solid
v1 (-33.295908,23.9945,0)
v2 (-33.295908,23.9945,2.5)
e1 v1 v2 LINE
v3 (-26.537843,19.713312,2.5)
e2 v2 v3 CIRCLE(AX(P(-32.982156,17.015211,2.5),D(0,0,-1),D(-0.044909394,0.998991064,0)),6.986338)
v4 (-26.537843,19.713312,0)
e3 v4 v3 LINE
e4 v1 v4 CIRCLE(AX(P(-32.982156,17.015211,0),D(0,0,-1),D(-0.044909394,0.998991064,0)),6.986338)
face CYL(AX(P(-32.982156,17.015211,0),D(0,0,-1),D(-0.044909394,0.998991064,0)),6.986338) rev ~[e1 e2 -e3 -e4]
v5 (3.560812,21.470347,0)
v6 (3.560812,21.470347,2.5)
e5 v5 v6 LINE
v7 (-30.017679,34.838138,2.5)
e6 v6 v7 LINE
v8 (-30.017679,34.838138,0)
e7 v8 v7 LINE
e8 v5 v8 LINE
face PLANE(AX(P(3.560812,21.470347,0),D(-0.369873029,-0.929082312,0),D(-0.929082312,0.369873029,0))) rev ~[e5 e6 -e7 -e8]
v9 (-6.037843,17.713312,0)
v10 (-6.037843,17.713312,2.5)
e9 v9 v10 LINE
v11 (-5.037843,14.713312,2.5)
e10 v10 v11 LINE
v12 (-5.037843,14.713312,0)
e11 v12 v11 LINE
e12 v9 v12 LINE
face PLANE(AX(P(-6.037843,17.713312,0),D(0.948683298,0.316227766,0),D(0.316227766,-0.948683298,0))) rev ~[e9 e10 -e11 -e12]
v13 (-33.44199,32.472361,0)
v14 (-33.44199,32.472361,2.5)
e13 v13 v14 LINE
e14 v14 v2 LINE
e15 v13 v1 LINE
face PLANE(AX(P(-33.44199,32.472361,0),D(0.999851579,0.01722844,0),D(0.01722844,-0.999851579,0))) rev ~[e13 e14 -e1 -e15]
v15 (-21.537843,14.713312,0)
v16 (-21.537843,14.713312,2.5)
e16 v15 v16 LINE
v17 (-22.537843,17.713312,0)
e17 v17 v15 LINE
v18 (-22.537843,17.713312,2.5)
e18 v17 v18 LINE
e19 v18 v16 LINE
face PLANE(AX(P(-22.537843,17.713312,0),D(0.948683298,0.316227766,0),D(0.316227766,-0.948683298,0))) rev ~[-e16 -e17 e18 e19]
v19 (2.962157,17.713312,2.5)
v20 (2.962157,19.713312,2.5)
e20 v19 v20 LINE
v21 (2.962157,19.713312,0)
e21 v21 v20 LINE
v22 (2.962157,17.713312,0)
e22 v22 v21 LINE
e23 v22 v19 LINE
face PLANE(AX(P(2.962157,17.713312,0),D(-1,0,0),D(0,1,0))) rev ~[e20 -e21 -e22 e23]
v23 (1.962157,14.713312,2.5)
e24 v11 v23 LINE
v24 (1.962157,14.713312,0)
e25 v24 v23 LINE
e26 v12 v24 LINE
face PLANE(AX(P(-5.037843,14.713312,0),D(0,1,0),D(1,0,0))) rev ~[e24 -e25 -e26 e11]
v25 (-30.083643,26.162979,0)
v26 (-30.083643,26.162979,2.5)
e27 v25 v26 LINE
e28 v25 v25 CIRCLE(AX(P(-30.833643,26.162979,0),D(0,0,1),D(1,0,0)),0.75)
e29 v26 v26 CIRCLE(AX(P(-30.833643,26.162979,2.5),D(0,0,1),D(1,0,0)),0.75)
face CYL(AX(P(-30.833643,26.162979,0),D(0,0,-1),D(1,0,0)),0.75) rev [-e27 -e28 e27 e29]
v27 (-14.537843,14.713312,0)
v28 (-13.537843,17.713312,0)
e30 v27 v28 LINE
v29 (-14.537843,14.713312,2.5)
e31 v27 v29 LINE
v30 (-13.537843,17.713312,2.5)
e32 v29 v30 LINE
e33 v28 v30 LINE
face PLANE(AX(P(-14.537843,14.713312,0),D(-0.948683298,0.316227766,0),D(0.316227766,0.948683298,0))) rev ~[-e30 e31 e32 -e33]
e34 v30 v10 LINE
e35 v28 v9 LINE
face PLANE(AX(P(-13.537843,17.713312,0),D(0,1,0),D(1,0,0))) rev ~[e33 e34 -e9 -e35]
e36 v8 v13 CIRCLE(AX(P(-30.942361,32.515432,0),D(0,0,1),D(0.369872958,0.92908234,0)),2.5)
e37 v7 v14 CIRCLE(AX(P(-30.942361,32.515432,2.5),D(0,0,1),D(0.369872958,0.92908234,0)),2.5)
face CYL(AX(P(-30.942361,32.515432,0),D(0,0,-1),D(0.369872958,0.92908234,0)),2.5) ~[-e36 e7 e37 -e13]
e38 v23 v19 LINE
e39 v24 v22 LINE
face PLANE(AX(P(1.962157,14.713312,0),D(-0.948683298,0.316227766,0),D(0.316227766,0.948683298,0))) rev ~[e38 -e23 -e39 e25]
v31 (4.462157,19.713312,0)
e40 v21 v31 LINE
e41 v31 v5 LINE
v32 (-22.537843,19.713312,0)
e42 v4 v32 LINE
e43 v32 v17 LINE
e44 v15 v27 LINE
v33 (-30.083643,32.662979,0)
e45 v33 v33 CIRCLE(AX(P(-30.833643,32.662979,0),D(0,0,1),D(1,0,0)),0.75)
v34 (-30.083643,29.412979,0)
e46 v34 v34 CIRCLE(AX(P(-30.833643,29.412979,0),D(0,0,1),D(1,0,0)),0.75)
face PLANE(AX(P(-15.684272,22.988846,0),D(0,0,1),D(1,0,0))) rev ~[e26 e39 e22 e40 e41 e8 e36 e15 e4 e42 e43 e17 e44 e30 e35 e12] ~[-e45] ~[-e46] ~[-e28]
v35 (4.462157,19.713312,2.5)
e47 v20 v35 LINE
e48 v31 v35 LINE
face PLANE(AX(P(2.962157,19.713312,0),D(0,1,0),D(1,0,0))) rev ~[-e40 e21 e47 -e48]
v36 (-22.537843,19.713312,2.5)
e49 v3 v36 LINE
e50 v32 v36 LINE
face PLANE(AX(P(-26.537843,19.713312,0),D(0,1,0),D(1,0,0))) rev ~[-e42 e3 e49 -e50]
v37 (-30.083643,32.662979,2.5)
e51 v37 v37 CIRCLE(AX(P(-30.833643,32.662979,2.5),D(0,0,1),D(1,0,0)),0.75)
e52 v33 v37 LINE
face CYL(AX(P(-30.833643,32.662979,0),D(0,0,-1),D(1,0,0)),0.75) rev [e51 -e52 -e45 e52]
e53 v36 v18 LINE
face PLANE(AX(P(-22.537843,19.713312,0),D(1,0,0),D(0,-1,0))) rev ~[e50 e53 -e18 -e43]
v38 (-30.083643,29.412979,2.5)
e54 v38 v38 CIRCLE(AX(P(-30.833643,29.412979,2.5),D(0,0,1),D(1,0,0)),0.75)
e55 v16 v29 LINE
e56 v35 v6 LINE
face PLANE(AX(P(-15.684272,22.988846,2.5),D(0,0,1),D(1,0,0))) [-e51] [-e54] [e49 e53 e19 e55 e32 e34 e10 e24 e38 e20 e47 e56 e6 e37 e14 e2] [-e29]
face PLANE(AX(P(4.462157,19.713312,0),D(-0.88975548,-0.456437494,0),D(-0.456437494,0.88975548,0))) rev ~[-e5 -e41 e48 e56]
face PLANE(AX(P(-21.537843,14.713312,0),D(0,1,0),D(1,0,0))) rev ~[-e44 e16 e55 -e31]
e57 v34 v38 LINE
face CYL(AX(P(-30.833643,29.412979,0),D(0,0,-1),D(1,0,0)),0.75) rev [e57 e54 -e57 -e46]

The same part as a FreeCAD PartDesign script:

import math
import FreeCAD as App
import Part
import Sketcher

doc = App.newDocument("Part")
body = doc.addObject("PartDesign::Body", "Body")

# Sketch on XY plane
sketch1 = body.newObject("Sketcher::SketchObject", "Sketch")
sketch1.AttachmentSupport = (doc.getObject("XY_Plane"), [""])
sketch1.MapMode = "FlatFace"
sketch1.addGeometry([
    Part.LineSegment(App.Vector(4.5, 19.7, 0), App.Vector(3.6, 21.5, 0)),  # 0
    Part.LineSegment(App.Vector(3.6, 21.5, 0), App.Vector(-30, 34.8, 0)),  # 1
    Part.ArcOfCircle(Part.Circle(App.Vector(-30.9, 32.5, 0), App.Vector(0, 0, 1), 2.5), math.radians(68), math.radians(181)),  # 2
    Part.LineSegment(App.Vector(-33.4, 32.5, 0), App.Vector(-33.3, 24, 0)),  # 3
    Part.ArcOfCircle(Part.Circle(App.Vector(-33, 17, 0), App.Vector(0, 0, 1), 7), math.radians(23), math.radians(93)),  # 4
    Part.LineSegment(App.Vector(-26.5, 19.7, 0), App.Vector(-22.5, 19.7, 0)),  # 5
    Part.LineSegment(App.Vector(-22.5, 19.7, 0), App.Vector(-22.5, 17.7, 0)),  # 6
    Part.LineSegment(App.Vector(-22.5, 17.7, 0), App.Vector(-21.5, 14.7, 0)),  # 7
    Part.LineSegment(App.Vector(-21.5, 14.7, 0), App.Vector(-14.5, 14.7, 0)),  # 8
    Part.LineSegment(App.Vector(-14.5, 14.7, 0), App.Vector(-13.5, 17.7, 0)),  # 9
    Part.LineSegment(App.Vector(-13.5, 17.7, 0), App.Vector(-6, 17.7, 0)),  # 10
    Part.LineSegment(App.Vector(-6, 17.7, 0), App.Vector(-5, 14.7, 0)),  # 11
    Part.LineSegment(App.Vector(-5, 14.7, 0), App.Vector(2, 14.7, 0)),  # 12
    Part.LineSegment(App.Vector(2, 14.7, 0), App.Vector(3, 17.7, 0)),  # 13
    Part.LineSegment(App.Vector(3, 17.7, 0), App.Vector(3, 19.7, 0)),  # 14
    Part.LineSegment(App.Vector(3, 19.7, 0), App.Vector(4.5, 19.7, 0)),  # 15
    Part.Circle(App.Vector(-30.8, 26.2, 0), App.Vector(0, 0, 1), 0.8),  # 16
    Part.Circle(App.Vector(-30.8, 29.4, 0), App.Vector(0, 0, 1), 0.8),  # 17
    Part.Circle(App.Vector(-30.8, 32.7, 0), App.Vector(0, 0, 1), 0.8),  # 18
], False)
sketch1.addConstraint([
    Sketcher.Constraint("Coincident", 0, 2, 1, 1),
    Sketcher.Constraint("Tangent", 1, 2, 2, 1),
    Sketcher.Constraint("Tangent", 2, 2, 3, 1),
    Sketcher.Constraint("Coincident", 3, 2, 4, 2),
    Sketcher.Constraint("Coincident", 4, 1, 5, 1),
    Sketcher.Constraint("Coincident", 5, 2, 6, 1),
    Sketcher.Constraint("Coincident", 6, 2, 7, 1),
    Sketcher.Constraint("Coincident", 7, 2, 8, 1),
    Sketcher.Constraint("Coincident", 8, 2, 9, 1),
    Sketcher.Constraint("Coincident", 9, 2, 10, 1),
    Sketcher.Constraint("Coincident", 10, 2, 11, 1),
    Sketcher.Constraint("Coincident", 11, 2, 12, 1),
    Sketcher.Constraint("Coincident", 12, 2, 13, 1),
    Sketcher.Constraint("Coincident", 13, 2, 14, 1),
    Sketcher.Constraint("Coincident", 14, 2, 15, 1),
    Sketcher.Constraint("Coincident", 15, 2, 0, 1),
    Sketcher.Constraint("Horizontal", 5),
    Sketcher.Constraint("Vertical", 6),
    Sketcher.Constraint("Horizontal", 8),
    Sketcher.Constraint("Horizontal", 10),
    Sketcher.Constraint("Horizontal", 12),
    Sketcher.Constraint("Vertical", 14),
    Sketcher.Constraint("Horizontal", 15),
    Sketcher.Constraint("Equal", 16, 17),
    Sketcher.Constraint("Equal", 17, 18),
    Sketcher.Constraint("Parallel", 7, 11),
    Sketcher.Constraint("Parallel", 9, 13),
    Sketcher.Constraint("Horizontal", 6, 2, 9, 2),
    Sketcher.Constraint("Horizontal", 8, 2, 11, 2),
    Sketcher.Constraint("Horizontal", 10, 2, 13, 2),
    Sketcher.Constraint("Horizontal", 5, 2, 14, 2),
    Sketcher.Constraint("Vertical", 16, 3, 17, 3),
    Sketcher.Constraint("Vertical", 17, 3, 18, 3),
    Sketcher.Constraint("Equal", 8, 12),
    Sketcher.Constraint("Equal", 7, 9),
    Sketcher.Constraint("Diameter", 16, 1.5),
    Sketcher.Constraint("Radius", 2, 2.5),
    Sketcher.Constraint("DistanceX", 5, 1, 5, 2, 4.0),
    Sketcher.Constraint("DistanceX", 8, 1, 8, 2, 7.0),
    Sketcher.Constraint("DistanceY", 6, 2, 6, 1, 2.0),
    Sketcher.Constraint("DistanceX", 10, 1, 10, 2, 7.5),
    Sketcher.Constraint("DistanceX", 15, 1, 15, 2, 1.5),
    Sketcher.Constraint("DistanceX", 6, 2, 7, 2, 1.0),
    Sketcher.Constraint("DistanceY", 7, 2, 6, 2, 3.0),
    Sketcher.Constraint("DistanceY", 16, 3, 18, 3, 6.5),
    Sketcher.Constraint("DistanceY", 16, 3, 17, 3, 3.25),
    Sketcher.Constraint("Radius", 4, 6.986338),
    Sketcher.Constraint("DistanceY", -1, 1, 3, 2, 23.9945),
    Sketcher.Constraint("DistanceY", 4, 3, 4, 1, 2.698101),
    Sketcher.Constraint("DistanceX", 16, 3, 4, 1, 4.2958),
    Sketcher.Constraint("Distance", 0, 1.974739),
    Sketcher.Constraint("Distance", 3, 8.479119),
    Sketcher.Constraint("DistanceX", 2, 3, -1, 1, 30.942361),
    Sketcher.Constraint("DistanceY", -1, 1, 4, 3, 17.015211),
    Sketcher.Constraint("DistanceY", -1, 1, 16, 3, 26.162979),
    Sketcher.Constraint("DistanceX", -1, 1, 0, 2, 3.560812),
    Sketcher.Constraint("DistanceX", 1, 2, -1, 1, 30.017679),
])
pad1 = body.newObject("PartDesign::Pad", "Pad")
pad1.Profile = sketch1
pad1.Length = 2.5

doc.recompute()
